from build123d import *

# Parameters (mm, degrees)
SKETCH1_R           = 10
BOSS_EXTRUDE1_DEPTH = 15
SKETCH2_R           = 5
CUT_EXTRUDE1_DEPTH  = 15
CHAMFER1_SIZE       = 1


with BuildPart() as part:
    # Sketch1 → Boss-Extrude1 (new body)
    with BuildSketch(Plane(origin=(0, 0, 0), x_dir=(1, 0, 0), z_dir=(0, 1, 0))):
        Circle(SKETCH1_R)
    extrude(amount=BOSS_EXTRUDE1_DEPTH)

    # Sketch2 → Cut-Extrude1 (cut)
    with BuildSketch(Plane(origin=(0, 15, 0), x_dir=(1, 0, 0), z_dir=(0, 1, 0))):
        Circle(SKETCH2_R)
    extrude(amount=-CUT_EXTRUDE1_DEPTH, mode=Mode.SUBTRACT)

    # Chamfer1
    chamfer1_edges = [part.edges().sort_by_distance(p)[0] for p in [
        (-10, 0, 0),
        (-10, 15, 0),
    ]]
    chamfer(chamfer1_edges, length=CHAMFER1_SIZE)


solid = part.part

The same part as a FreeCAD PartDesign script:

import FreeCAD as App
import Part
import Sketcher
from FreeCAD import Vector


def edges_at(feature, points):
    """Names of the edges that pass closest to the given points."""
    edges = feature.Shape.Edges
    near = lambda p: min(range(len(edges)), key=lambda i: edges[i].distToShape(Part.Vertex(*p))[0])
    return sorted({f"Edge{near(p) + 1}" for p in points})

doc = App.newDocument("Part")
body = doc.addObject("PartDesign::Body", "Body")

# Sketch on XZ plane
sketch1 = doc.addObject("Sketcher::SketchObject", "Sketch")
body.addObject(sketch1)
sketch1.AttachmentSupport = (doc.XZ_Plane, [""])
sketch1.MapMode = "FlatFace"
sketch1.addGeometry(Part.Circle(Vector(0, 0, 0), Vector(0, 0, 1), 10), False)
sketch1.addConstraint(Sketcher.Constraint("Coincident", 0, 3, -1, 1))
sketch1.addConstraint(Sketcher.Constraint("Diameter", 0, 20.0))
pad1 = doc.addObject("PartDesign::Pad", "Pad")
body.addObject(pad1)
pad1.Profile = sketch1
pad1.Length = 15
pad1.Reversed = True

# Sketch on XZ plane
sketch2 = doc.addObject("Sketcher::SketchObject", "Sketch001")
body.addObject(sketch2)
sketch2.AttachmentSupport = (doc.XZ_Plane, [""])
sketch2.MapMode = "FlatFace"
sketch2.AttachmentOffset = App.Placement(Vector(0, 0, -15), App.Rotation())
sketch2.addGeometry(Part.Circle(Vector(0, 0, 0), Vector(0, 0, 1), 5), False)
sketch2.addConstraint(Sketcher.Constraint("Coincident", 0, 3, -1, 1))
sketch2.addConstraint(Sketcher.Constraint("Diameter", 0, 10.0))
pocket1 = doc.addObject("PartDesign::Pocket", "Pocket")
body.addObject(pocket1)
pocket1.Profile = sketch2
pocket1.Length = 15
pocket1.Reversed = True
doc.recompute()

chamfer = doc.addObject("PartDesign::Chamfer", "Chamfer")
body.addObject(chamfer)
chamfer.Base = (pocket1, edges_at(pocket1, [(-10, 0, 0), (-10, 15, 0)]))
chamfer.Size = 1

doc.recompute()
